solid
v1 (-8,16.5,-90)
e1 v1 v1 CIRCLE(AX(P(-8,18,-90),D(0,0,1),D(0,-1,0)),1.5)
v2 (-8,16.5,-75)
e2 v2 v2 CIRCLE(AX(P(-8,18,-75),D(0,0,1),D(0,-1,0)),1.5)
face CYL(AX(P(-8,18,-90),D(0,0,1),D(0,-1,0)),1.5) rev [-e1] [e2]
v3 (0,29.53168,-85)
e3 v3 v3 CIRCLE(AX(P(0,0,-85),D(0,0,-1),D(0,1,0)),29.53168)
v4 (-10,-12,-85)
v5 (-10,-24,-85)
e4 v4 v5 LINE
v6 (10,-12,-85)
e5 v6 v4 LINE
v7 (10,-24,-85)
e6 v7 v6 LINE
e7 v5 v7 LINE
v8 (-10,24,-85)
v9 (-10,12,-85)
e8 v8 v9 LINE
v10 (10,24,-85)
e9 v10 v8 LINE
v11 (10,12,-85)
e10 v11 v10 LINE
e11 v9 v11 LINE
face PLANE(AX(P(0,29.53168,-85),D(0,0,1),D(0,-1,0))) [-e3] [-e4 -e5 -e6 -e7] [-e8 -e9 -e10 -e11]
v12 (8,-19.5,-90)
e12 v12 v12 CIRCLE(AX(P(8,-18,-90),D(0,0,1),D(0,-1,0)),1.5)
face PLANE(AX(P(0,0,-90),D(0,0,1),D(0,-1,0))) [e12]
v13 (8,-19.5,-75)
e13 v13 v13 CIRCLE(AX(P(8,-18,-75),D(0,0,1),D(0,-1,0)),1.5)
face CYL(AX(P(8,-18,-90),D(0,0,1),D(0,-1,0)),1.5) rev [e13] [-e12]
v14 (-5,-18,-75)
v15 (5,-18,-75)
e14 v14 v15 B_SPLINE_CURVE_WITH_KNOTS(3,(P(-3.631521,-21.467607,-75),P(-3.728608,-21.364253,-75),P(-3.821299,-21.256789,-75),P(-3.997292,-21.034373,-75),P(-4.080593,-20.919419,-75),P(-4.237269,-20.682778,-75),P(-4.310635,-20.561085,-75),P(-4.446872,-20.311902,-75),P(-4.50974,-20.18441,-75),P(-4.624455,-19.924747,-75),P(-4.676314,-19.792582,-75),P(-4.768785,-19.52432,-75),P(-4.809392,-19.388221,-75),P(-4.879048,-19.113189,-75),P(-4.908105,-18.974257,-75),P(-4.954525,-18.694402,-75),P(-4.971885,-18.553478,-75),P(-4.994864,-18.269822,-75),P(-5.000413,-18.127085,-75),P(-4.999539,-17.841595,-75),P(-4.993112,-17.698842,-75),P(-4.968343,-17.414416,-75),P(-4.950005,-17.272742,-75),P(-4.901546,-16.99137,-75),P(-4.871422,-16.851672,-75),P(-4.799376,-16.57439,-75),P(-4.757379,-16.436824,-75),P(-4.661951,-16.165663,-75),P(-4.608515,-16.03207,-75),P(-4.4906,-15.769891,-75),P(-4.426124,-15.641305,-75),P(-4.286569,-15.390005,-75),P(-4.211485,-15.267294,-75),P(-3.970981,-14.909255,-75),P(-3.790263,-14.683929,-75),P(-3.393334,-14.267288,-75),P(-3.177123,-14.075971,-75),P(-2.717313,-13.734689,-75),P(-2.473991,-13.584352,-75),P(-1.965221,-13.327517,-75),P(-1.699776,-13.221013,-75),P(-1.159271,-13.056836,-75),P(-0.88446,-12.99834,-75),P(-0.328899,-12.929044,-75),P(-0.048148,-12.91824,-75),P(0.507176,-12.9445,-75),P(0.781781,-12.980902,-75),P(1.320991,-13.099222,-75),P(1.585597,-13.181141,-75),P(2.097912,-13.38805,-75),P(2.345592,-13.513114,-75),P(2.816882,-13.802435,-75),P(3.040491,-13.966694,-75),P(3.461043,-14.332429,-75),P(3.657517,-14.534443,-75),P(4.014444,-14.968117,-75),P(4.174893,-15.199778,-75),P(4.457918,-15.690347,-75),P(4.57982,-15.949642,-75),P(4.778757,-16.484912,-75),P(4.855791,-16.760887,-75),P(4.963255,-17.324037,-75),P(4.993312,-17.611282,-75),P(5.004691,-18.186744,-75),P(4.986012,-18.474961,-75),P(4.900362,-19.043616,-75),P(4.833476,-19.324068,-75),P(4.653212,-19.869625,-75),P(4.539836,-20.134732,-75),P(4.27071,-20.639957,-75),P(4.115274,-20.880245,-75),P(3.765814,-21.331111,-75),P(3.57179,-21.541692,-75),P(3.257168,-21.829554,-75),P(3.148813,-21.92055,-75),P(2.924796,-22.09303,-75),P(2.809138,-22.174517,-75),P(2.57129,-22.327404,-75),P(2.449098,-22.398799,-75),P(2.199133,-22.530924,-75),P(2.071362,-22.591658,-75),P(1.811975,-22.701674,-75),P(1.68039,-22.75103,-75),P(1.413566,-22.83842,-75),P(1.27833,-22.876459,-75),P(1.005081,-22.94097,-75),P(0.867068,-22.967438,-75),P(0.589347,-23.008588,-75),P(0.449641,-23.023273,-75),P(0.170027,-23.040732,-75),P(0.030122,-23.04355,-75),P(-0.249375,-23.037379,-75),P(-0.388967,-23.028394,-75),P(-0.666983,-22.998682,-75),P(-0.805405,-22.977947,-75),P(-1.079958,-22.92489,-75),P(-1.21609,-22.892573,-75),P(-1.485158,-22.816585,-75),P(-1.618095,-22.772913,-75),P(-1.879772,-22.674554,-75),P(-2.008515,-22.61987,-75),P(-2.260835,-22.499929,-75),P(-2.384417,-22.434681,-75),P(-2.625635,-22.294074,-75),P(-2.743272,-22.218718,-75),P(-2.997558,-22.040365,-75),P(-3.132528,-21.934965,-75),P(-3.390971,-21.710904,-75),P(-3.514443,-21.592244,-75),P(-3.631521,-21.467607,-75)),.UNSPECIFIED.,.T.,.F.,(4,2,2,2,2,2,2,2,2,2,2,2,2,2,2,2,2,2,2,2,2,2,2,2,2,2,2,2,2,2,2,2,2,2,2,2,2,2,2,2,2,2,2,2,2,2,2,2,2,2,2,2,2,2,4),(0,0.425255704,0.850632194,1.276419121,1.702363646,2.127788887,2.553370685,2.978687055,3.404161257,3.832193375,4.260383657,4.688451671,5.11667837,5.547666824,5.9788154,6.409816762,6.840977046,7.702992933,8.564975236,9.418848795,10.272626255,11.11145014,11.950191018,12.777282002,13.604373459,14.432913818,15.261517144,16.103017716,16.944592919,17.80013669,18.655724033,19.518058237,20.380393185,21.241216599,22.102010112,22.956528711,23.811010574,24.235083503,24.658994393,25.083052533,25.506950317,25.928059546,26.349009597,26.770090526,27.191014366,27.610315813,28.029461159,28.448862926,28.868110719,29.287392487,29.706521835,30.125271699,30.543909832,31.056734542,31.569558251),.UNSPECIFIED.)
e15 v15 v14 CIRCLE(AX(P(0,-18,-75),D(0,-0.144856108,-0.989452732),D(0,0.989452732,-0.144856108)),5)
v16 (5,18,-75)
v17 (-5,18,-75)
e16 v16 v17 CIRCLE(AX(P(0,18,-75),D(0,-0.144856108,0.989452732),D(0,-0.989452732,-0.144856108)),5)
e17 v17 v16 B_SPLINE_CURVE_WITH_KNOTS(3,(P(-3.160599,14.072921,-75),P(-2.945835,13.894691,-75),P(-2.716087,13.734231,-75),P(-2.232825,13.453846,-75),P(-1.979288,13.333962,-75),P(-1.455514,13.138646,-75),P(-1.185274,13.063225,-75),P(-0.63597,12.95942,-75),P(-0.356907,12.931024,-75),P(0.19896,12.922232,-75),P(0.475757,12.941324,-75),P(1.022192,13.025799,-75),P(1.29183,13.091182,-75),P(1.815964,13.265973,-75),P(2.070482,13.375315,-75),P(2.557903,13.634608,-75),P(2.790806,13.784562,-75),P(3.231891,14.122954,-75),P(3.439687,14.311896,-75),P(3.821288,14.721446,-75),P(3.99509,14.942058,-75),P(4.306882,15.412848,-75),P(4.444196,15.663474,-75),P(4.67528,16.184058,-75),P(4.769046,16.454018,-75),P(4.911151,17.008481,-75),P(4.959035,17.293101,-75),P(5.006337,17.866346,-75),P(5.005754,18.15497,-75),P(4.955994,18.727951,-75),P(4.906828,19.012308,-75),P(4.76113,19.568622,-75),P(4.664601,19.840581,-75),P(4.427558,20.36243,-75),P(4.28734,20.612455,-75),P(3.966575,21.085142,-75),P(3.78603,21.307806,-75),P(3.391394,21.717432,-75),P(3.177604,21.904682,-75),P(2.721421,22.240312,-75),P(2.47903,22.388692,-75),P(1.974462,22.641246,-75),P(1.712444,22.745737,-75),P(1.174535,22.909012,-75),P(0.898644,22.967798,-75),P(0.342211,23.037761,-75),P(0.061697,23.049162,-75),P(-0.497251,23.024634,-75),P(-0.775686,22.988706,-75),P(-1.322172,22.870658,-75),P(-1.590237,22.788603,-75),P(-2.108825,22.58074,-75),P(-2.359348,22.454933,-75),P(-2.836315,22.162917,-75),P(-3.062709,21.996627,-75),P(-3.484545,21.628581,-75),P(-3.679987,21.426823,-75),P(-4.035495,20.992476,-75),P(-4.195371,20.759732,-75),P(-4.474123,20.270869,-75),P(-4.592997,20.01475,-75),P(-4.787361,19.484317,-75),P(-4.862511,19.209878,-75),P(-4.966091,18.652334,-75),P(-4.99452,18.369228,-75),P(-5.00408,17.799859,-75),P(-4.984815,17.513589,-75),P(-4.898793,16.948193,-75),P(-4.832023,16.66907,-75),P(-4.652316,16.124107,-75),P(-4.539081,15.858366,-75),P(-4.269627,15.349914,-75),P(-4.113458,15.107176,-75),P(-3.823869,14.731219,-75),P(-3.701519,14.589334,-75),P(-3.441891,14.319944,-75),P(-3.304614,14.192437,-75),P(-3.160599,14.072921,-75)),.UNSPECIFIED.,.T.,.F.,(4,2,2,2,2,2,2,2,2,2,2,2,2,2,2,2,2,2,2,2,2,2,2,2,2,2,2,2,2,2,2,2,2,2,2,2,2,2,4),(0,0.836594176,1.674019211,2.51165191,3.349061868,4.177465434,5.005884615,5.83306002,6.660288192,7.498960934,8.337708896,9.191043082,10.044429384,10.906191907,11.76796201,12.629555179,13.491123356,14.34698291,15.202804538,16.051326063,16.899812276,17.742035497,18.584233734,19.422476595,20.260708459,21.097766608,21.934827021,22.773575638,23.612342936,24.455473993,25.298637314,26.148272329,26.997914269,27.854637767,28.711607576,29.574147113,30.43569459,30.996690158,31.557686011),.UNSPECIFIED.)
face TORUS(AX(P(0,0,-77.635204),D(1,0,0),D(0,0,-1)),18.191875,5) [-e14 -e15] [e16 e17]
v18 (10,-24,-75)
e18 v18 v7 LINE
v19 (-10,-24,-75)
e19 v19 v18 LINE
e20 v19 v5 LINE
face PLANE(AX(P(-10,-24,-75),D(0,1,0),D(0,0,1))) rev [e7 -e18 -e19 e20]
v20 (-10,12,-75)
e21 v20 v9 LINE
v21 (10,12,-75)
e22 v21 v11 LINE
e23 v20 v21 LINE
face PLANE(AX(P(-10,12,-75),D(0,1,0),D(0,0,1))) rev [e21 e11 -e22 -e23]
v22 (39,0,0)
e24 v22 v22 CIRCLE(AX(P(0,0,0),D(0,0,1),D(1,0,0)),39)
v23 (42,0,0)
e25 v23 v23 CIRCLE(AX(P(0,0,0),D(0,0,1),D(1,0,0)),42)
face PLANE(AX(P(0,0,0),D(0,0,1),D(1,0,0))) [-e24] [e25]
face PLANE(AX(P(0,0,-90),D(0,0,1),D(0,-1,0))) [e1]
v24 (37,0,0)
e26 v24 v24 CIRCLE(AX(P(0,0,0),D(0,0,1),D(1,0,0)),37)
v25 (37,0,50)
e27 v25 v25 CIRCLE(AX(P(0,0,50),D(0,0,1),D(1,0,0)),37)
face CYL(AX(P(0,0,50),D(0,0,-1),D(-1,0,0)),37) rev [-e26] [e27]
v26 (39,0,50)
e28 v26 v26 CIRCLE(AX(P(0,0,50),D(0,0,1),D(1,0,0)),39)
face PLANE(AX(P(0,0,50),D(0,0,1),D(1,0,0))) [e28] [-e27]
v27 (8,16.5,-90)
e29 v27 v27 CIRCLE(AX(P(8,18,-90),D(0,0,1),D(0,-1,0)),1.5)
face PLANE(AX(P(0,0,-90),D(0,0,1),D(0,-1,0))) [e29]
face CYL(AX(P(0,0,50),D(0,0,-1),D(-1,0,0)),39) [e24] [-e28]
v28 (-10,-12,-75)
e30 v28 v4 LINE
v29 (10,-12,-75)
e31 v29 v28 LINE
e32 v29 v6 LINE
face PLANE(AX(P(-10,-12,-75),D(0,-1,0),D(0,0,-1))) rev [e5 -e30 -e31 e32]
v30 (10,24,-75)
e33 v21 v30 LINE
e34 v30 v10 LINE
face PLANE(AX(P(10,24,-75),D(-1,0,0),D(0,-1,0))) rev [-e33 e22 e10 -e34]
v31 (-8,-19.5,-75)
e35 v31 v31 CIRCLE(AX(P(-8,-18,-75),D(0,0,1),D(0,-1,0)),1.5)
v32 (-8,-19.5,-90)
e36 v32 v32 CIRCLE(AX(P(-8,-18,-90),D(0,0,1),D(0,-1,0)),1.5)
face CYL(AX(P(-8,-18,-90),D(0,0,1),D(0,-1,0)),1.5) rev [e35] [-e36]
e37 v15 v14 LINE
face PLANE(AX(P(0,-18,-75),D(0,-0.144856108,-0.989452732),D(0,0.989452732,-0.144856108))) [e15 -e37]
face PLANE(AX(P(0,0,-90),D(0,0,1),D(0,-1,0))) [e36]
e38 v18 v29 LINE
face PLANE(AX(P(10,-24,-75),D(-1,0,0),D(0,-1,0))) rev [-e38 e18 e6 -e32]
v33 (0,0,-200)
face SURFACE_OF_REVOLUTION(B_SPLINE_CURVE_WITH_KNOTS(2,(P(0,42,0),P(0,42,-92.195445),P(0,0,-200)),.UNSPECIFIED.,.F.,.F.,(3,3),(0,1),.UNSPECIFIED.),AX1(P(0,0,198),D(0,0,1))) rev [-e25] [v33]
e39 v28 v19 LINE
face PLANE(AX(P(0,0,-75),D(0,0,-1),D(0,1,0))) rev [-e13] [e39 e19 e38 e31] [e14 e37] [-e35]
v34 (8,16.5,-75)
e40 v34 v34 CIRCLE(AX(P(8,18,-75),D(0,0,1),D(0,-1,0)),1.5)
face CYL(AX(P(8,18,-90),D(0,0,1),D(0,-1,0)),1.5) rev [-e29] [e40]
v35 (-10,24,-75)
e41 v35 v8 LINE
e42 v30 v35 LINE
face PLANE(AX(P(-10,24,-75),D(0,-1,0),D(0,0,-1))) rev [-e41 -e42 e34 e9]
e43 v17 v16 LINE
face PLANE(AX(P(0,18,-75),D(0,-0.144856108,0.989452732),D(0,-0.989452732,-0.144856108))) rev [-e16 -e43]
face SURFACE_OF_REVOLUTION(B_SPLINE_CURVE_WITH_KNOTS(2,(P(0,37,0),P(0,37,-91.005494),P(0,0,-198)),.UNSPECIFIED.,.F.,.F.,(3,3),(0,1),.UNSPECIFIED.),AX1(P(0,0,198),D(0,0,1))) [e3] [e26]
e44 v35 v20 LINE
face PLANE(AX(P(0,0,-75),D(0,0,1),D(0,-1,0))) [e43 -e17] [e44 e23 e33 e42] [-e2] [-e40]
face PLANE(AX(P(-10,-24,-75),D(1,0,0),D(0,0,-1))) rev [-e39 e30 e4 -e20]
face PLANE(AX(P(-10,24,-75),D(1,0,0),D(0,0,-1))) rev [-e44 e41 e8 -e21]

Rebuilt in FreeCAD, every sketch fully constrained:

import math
import FreeCAD as App
import Part
import Sketcher

V = App.Vector
Q = App.Units.Quantity

doc = App.newDocument("Part")
body = doc.addObject("PartDesign::Body", "Body")

sketch1 = body.newObject("Sketcher::SketchObject", "Sketch")
sketch1.AttachmentSupport = (doc.getObject("YZ_Plane"), [""])
sketch1.MapMode = "FlatFace"
sketch1.addGeometry(Part.LineSegment(V(42, 0, 0), V(37, 0, 0)), False)
sketch1.addGeometry(Part.BSplineCurve([V(37, 0, 0), V(37, -91.005494, 0), V(0, -198, 0)], [3, 3], [0, 1], False, 2, [1, 1, 1], False), False)
sketch1.addGeometry(Part.LineSegment(V(0, -198, 0), V(0, -200, 0)), False)
sketch1.addGeometry(Part.BSplineCurve([V(42, 0, 0), V(42, -92.195445, 0), V(0, -200, 0)], [3, 3], [0, 1], False, 2, [1, 1, 1], False), False)
sketch1.addConstraint(Sketcher.Constraint("Block", 1))
sketch1.addConstraint(Sketcher.Constraint("Block", 3))
sketch1.addConstraint(Sketcher.Constraint("Coincident", 0, 2, 1, 1))
sketch1.addConstraint(Sketcher.Constraint("Coincident", 1, 2, 2, 1))
sketch1.addConstraint(Sketcher.Constraint("Coincident", 2, 2, 3, 2))
sketch1.addConstraint(Sketcher.Constraint("Coincident", 3, 1, 0, 1))
revolution = body.newObject("PartDesign::Revolution", "Revolution")
revolution.Profile = sketch1
revolution.ReferenceAxis = (sketch1, ["V_Axis"])
revolution.Angle = 360
body2 = doc.addObject("PartDesign::Body", "Body001")

sketch2 = body2.newObject("Sketcher::SketchObject", "Sketch001")
sketch2.AttachmentSupport = (doc.getObject("YZ_Plane001"), [""])
sketch2.MapMode = "FlatFace"
sketch2.addGeometry(Part.LineSegment(V(37, 0, 0), V(0, 0, 0)), False)
sketch2.addGeometry(Part.LineSegment(V(0, 0, 0), V(0, -198, 0)), False)
sketch2.addGeometry(Part.BSplineCurve([V(37, 0, 0), V(37, -91.005494, 0), V(0, -198, 0)], [3, 3], [0, 1], False, 2, [1, 1, 1], False), False)
sketch2.addConstraint(Sketcher.Constraint("Block", 2))
sketch2.addConstraint(Sketcher.Constraint("Coincident", 0, 2, 1, 1))
sketch2.addConstraint(Sketcher.Constraint("Coincident", 1, 2, 2, 2))
sketch2.addConstraint(Sketcher.Constraint("Coincident", 2, 1, 0, 1))
sketch2.addConstraint(Sketcher.Constraint("Horizontal", 0))
sketch2.addConstraint(Sketcher.Constraint("Vertical", 1))
revolution2 = body2.newObject("PartDesign::Revolution", "Revolution001")
revolution2.Profile = sketch2
revolution2.ReferenceAxis = (sketch2, ["V_Axis"])
revolution2.Angle = 360

sketch3 = body2.newObject("Sketcher::SketchObject", "Sketch002")
sketch3.AttachmentSupport = (doc.getObject("YZ_Plane001"), [""])
sketch3.MapMode = "FlatFace"
sketch3.addGeometry(Part.LineSegment(V(0, 0, 0), V(0, -85, 0)), False)
sketch3.addGeometry(Part.LineSegment(V(0, -85, 0), V(29.53168, -85, 0)), False)
sketch3.addGeometry(Part.BSplineCurve([V(37, 0, 0), V(37, -40.886337, 0), V(29.53168, -85, 0)], [3, 3], [0, 1], False, 2, [1, 1, 1], False), False)
sketch3.addGeometry(Part.LineSegment(V(37, 0, 0), V(0, 0, 0)), False)
sketch3.addConstraint(Sketcher.Constraint("Block", 2))
sketch3.addConstraint(Sketcher.Constraint("Coincident", 0, 2, 1, 1))
sketch3.addConstraint(Sketcher.Constraint("Coincident", 1, 2, 2, 2))
sketch3.addConstraint(Sketcher.Constraint("Coincident", 2, 1, 3, 1))
sketch3.addConstraint(Sketcher.Constraint("Coincident", 3, 2, 0, 1))
sketch3.addConstraint(Sketcher.Constraint("Vertical", 0))
sketch3.addConstraint(Sketcher.Constraint("Horizontal", 1))
sketch3.addConstraint(Sketcher.Constraint("Horizontal", 3))
sketch3.addConstraint(Sketcher.Constraint("PointOnObject", 0, 2, -2))
groove = body2.newObject("PartDesign::Groove", "Groove")
groove.Profile = sketch3
groove.ReferenceAxis = (sketch3, ["V_Axis"])
groove.Angle = 360
doc.recompute()

boolean = body.newObject("PartDesign::Boolean", "Boolean")
boolean.Type = "Fuse"
boolean.addObjects([body2])

sketch4 = body.newObject("Sketcher::SketchObject", "Sketch003")
sketch4.AttachmentSupport = (doc.getObject("XY_Plane"), [""])
sketch4.MapMode = "FlatFace"
sketch4.AttachmentOffset = App.Placement(V(0, 0, -85), App.Rotation())
sketch4.addGeometry(Part.LineSegment(V(-10, 24, 0), V(-10, 12, 0)), False)
sketch4.addGeometry(Part.LineSegment(V(-10, 12, 0), V(10, 12, 0)), False)
sketch4.addGeometry(Part.LineSegment(V(10, 12, 0), V(10, 24, 0)), False)
sketch4.addGeometry(Part.LineSegment(V(10, 24, 0), V(-10, 24, 0)), False)
sketch4.addGeometry(Part.LineSegment(V(-10, -12, 0), V(-10, -24, 0)), False)
sketch4.addGeometry(Part.LineSegment(V(-10, -24, 0), V(10, -24, 0)), False)
sketch4.addGeometry(Part.LineSegment(V(10, -24, 0), V(10, -12, 0)), False)
sketch4.addGeometry(Part.LineSegment(V(10, -12, 0), V(-10, -12, 0)), False)
sketch4.addConstraint(Sketcher.Constraint("Coincident", 0, 2, 1, 1))
sketch4.addConstraint(Sketcher.Constraint("Coincident", 1, 2, 2, 1))
sketch4.addConstraint(Sketcher.Constraint("Coincident", 2, 2, 3, 1))
sketch4.addConstraint(Sketcher.Constraint("Coincident", 3, 2, 0, 1))
sketch4.addConstraint(Sketcher.Constraint("Coincident", 4, 2, 5, 1))
sketch4.addConstraint(Sketcher.Constraint("Coincident", 5, 2, 6, 1))
sketch4.addConstraint(Sketcher.Constraint("Coincident", 6, 2, 7, 1))
sketch4.addConstraint(Sketcher.Constraint("Coincident", 7, 2, 4, 1))
sketch4.addConstraint(Sketcher.Constraint("Vertical", 0))
sketch4.addConstraint(Sketcher.Constraint("Horizontal", 1))
sketch4.addConstraint(Sketcher.Constraint("Vertical", 2))
sketch4.addConstraint(Sketcher.Constraint("Horizontal", 3))
sketch4.addConstraint(Sketcher.Constraint("Vertical", 4))
sketch4.addConstraint(Sketcher.Constraint("Horizontal", 5))
sketch4.addConstraint(Sketcher.Constraint("Vertical", 6))
sketch4.addConstraint(Sketcher.Constraint("Horizontal", 7))
sketch4.addConstraint(Sketcher.Constraint("Symmetric", 2, 2, 4, 2, -1, 1))
sketch4.addConstraint(Sketcher.Constraint("Symmetric", 0, 2, 6, 2, -1, 1))
sketch4.addConstraint(Sketcher.Constraint("Vertical", 3, 2, 4, 2))
sketch4.addConstraint(Sketcher.Constraint("DistanceX", 1, 1, 1, 2, Q("20 mm")))
sketch4.addConstraint(Sketcher.Constraint("DistanceY", 0, 2, 0, 1, Q("12 mm")))
sketch4.addConstraint(Sketcher.Constraint("DistanceY", -1, 1, 0, 2, Q("12 mm")))
pad1 = body.newObject("PartDesign::Pad", "Pad")
pad1.Profile = sketch4
pad1.Length = 10

sketch5 = body.newObject("Sketcher::SketchObject", "Sketch004")
sketch5.AttachmentSupport = (doc.getObject("XY_Plane"), [""])
sketch5.MapMode = "FlatFace"
sketch5.AttachmentOffset = App.Placement(V(0, 0, -75), App.Rotation())
sketch5.addGeometry(Part.Circle(V(-8, 18, 0), V(0, 0, 1), 1.5), False)
sketch5.addGeometry(Part.Circle(V(8, 18, 0), V(0, 0, 1), 1.5), False)
sketch5.addGeometry(Part.Circle(V(-8, -18, 0), V(0, 0, 1), 1.5), False)
sketch5.addGeometry(Part.Circle(V(8, -18, 0), V(0, 0, 1), 1.5), False)
sketch5.addConstraint(Sketcher.Constraint("Equal", 0, 1))
sketch5.addConstraint(Sketcher.Constraint("Equal", 1, 2))
sketch5.addConstraint(Sketcher.Constraint("Equal", 2, 3))
sketch5.addConstraint(Sketcher.Constraint("Symmetric", 1, 3, 2, 3, -1, 1))
sketch5.addConstraint(Sketcher.Constraint("Symmetric", 0, 3, 3, 3, -1, 1))
sketch5.addConstraint(Sketcher.Constraint("Symmetric", 0, 3, 1, 3, -2))
sketch5.addConstraint(Sketcher.Constraint("Diameter", 0, Q("3 mm")))
sketch5.addConstraint(Sketcher.Constraint("DistanceX", 0, 3, -1, 1, Q("8 mm")))
sketch5.addConstraint(Sketcher.Constraint("DistanceY", -1, 1, 0, 3, Q("18 mm")))
pocket1 = body.newObject("PartDesign::Pocket", "Pocket")
pocket1.Profile = sketch5
pocket1.Length = 15

sketch6 = body.newObject("Sketcher::SketchObject", "Sketch005")
sketch6.Placement = App.Placement(V(0, 18, -75), App.Rotation(V(0, 0.989452732, 0.144856108), V(-1.000000001, 0, 0), V(0, -0.144856108, 0.989452732), "ZXY"))
sketch6.addGeometry(Part.Circle(V(0, 0, 0), V(0, 0, 1), 5), False)
sketch6.addConstraint(Sketcher.Constraint("Coincident", 0, 3, -1, 1))
sketch6.addConstraint(Sketcher.Constraint("Diameter", 0, Q("10 mm")))

sketch7 = body.newObject("Sketcher::SketchObject", "Sketch006")
sketch7.AttachmentSupport = (doc.getObject("YZ_Plane"), [""])
sketch7.MapMode = "FlatFace"
sketch7.addGeometry(Part.ArcOfCircle(Part.Circle(V(0, -78, 0), V(0, 0, 1), 18), math.radians(8), math.radians(172)), False)
sketch7.addConstraint(Sketcher.Constraint("Symmetric", 0, 1, 0, 2, -2))
sketch7.addConstraint(Sketcher.Constraint("DistanceX", -1, 1, 0, 1, Q("18 mm")))
sketch7.addConstraint(Sketcher.Constraint("DistanceY", 0, 1, -1, 1, Q("75 mm")))
sketch7.addConstraint(Sketcher.Constraint("Radius", 0, Q("18.191875 mm")))
doc.recompute()

additivepipe = body.newObject("PartDesign::AdditivePipe", "AdditivePipe")
additivepipe.Profile = sketch6
additivepipe.Spine = (sketch7, ["Edge1"])

sketch8 = body.newObject("Sketcher::SketchObject", "Sketch007")
sketch8.AttachmentSupport = (doc.getObject("XY_Plane"), [""])
sketch8.MapMode = "FlatFace"
sketch8.addGeometry(Part.Circle(V(0, 0, 0), V(0, 0, 1), 39), False)
sketch8.addGeometry(Part.Circle(V(0, 0, 0), V(0, 0, 1), 37), False)
sketch8.addConstraint(Sketcher.Constraint("Coincident", 0, 3, -1, 1))
sketch8.addConstraint(Sketcher.Constraint("Coincident", 1, 3, -1, 1))
sketch8.addConstraint(Sketcher.Constraint("Diameter", 0, Q("78 mm")))
sketch8.addConstraint(Sketcher.Constraint("Diameter", 1, Q("74 mm")))
pad2 = body.newObject("PartDesign::Pad", "Pad001")
pad2.Profile = sketch8
pad2.Length = 50

doc.recompute()
